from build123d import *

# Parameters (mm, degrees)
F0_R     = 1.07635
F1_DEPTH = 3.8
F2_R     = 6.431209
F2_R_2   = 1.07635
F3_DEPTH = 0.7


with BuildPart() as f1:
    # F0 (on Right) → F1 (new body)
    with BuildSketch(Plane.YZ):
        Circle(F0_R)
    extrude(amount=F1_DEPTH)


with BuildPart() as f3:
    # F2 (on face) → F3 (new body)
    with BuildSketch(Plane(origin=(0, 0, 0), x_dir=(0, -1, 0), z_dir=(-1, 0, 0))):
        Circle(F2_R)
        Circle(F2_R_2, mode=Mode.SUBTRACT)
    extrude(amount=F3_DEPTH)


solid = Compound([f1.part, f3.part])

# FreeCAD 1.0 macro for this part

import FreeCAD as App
import Part
import Sketcher
from FreeCAD import Vector

doc = App.newDocument("Part")
body = doc.addObject("PartDesign::Body", "Body")

sketch1 = body.newObject("Sketcher::SketchObject", "Sketch")
sketch1.AttachmentSupport = (doc.getObject("YZ_Plane"), [""])
sketch1.MapMode = "FlatFace"
sketch1.addGeometry(Part.Circle(Vector(0, 0, 0), Vector(0, 0, 1), 1.07635), False)
sketch1.addConstraint([
    Sketcher.Constraint("Coincident", 0, 3, -1, 1),
    Sketcher.Constraint("Diameter", 0, 2.1527),
])
pad1 = body.newObject("PartDesign::Pad", "Pad")
pad1.Profile = sketch1
pad1.Length = 3.8
body2 = doc.addObject("PartDesign::Body", "Body001")

sketch2 = body2.newObject("Sketcher::SketchObject", "Sketch001")
sketch2.AttachmentSupport = (doc.getObject("YZ_Plane001"), [""])
sketch2.MapMode = "FlatFace"
sketch2.addGeometry([
    Part.Circle(Vector(0, 0, 0), Vector(0, 0, 1), 6.431209),
    Part.Circle(Vector(0, 0, 0), Vector(0, 0, 1), 1.07635),
], False)
sketch2.addConstraint([
    Sketcher.Constraint("Coincident", 0, 3, -1, 1),
    Sketcher.Constraint("Coincident", 1, 3, -1, 1),
    Sketcher.Constraint("Diameter", 1, 2.1527),
    Sketcher.Constraint("Diameter", 0, 12.862418),
])
pad2 = body2.newObject("PartDesign::Pad", "Pad001")
pad2.Profile = sketch2
pad2.Length = 0.7
pad2.Reversed = True

doc.recompute()
